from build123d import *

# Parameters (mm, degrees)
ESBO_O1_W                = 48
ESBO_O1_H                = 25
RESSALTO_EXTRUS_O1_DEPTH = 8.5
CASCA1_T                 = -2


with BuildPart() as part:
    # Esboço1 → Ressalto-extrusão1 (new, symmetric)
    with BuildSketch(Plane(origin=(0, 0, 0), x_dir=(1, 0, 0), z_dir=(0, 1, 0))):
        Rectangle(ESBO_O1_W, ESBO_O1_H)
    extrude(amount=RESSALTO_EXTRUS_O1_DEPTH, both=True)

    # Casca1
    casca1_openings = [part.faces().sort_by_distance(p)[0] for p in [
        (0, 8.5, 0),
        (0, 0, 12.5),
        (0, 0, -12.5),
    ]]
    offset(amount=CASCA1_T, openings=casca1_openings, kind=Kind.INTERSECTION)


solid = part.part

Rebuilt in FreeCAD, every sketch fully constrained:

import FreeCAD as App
import Part
import Sketcher

V = App.Vector
Q = App.Units.Quantity


def faces_at(feature, points):
    """Names of the faces that lie closest to the given points."""
    faces = feature.Shape.Faces
    near = lambda p: min(range(len(faces)), key=lambda i: faces[i].distToShape(Part.Vertex(*p))[0])
    return sorted({f"Face{near(p) + 1}" for p in points})

doc = App.newDocument("Part")
body = doc.addObject("PartDesign::Body", "Body")

# Sketch on XZ plane
sketch1 = body.newObject("Sketcher::SketchObject", "Sketch")
sketch1.AttachmentSupport = (doc.getObject("XZ_Plane"), [""])
sketch1.MapMode = "FlatFace"
sketch1.addGeometry([
    Part.LineSegment(V(-24, -12, 0), V(-24, 12, 0)),
    Part.LineSegment(V(-24, 12, 0), V(24, 12, 0)),
    Part.LineSegment(V(24, 12, 0), V(24, -12, 0)),
    Part.LineSegment(V(24, -12, 0), V(-24, -12, 0)),
], False)
sketch1.addConstraint([
    Sketcher.Constraint("Coincident", 0, 2, 1, 1),
    Sketcher.Constraint("Coincident", 1, 2, 2, 1),
    Sketcher.Constraint("Coincident", 2, 2, 3, 1),
    Sketcher.Constraint("Coincident", 3, 2, 0, 1),
    Sketcher.Constraint("Vertical", 0),
    Sketcher.Constraint("Horizontal", 1),
    Sketcher.Constraint("Vertical", 2),
    Sketcher.Constraint("Horizontal", 3),
    Sketcher.Constraint("Symmetric", 0, 2, 2, 2, -1, 1),
    Sketcher.Constraint("DistanceX", 1, 1, 1, 2, Q("48 mm")),
    Sketcher.Constraint("DistanceY", 0, 1, 0, 2, Q("25 mm")),
])
pad1 = body.newObject("PartDesign::Pad", "Pad")
pad1.Profile = sketch1
pad1.Length = 17
pad1.Midplane = True
doc.recompute()

thickness = body.newObject("PartDesign::Thickness", "Thickness")
thickness.Base = (pad1, faces_at(pad1, [(0, 8.5, 0), (0, 0, 12.5), (0, 0, -12.5)]))
thickness.Value = 2
thickness.Reversed = True
thickness.Join = "Intersection"

doc.recompute()
